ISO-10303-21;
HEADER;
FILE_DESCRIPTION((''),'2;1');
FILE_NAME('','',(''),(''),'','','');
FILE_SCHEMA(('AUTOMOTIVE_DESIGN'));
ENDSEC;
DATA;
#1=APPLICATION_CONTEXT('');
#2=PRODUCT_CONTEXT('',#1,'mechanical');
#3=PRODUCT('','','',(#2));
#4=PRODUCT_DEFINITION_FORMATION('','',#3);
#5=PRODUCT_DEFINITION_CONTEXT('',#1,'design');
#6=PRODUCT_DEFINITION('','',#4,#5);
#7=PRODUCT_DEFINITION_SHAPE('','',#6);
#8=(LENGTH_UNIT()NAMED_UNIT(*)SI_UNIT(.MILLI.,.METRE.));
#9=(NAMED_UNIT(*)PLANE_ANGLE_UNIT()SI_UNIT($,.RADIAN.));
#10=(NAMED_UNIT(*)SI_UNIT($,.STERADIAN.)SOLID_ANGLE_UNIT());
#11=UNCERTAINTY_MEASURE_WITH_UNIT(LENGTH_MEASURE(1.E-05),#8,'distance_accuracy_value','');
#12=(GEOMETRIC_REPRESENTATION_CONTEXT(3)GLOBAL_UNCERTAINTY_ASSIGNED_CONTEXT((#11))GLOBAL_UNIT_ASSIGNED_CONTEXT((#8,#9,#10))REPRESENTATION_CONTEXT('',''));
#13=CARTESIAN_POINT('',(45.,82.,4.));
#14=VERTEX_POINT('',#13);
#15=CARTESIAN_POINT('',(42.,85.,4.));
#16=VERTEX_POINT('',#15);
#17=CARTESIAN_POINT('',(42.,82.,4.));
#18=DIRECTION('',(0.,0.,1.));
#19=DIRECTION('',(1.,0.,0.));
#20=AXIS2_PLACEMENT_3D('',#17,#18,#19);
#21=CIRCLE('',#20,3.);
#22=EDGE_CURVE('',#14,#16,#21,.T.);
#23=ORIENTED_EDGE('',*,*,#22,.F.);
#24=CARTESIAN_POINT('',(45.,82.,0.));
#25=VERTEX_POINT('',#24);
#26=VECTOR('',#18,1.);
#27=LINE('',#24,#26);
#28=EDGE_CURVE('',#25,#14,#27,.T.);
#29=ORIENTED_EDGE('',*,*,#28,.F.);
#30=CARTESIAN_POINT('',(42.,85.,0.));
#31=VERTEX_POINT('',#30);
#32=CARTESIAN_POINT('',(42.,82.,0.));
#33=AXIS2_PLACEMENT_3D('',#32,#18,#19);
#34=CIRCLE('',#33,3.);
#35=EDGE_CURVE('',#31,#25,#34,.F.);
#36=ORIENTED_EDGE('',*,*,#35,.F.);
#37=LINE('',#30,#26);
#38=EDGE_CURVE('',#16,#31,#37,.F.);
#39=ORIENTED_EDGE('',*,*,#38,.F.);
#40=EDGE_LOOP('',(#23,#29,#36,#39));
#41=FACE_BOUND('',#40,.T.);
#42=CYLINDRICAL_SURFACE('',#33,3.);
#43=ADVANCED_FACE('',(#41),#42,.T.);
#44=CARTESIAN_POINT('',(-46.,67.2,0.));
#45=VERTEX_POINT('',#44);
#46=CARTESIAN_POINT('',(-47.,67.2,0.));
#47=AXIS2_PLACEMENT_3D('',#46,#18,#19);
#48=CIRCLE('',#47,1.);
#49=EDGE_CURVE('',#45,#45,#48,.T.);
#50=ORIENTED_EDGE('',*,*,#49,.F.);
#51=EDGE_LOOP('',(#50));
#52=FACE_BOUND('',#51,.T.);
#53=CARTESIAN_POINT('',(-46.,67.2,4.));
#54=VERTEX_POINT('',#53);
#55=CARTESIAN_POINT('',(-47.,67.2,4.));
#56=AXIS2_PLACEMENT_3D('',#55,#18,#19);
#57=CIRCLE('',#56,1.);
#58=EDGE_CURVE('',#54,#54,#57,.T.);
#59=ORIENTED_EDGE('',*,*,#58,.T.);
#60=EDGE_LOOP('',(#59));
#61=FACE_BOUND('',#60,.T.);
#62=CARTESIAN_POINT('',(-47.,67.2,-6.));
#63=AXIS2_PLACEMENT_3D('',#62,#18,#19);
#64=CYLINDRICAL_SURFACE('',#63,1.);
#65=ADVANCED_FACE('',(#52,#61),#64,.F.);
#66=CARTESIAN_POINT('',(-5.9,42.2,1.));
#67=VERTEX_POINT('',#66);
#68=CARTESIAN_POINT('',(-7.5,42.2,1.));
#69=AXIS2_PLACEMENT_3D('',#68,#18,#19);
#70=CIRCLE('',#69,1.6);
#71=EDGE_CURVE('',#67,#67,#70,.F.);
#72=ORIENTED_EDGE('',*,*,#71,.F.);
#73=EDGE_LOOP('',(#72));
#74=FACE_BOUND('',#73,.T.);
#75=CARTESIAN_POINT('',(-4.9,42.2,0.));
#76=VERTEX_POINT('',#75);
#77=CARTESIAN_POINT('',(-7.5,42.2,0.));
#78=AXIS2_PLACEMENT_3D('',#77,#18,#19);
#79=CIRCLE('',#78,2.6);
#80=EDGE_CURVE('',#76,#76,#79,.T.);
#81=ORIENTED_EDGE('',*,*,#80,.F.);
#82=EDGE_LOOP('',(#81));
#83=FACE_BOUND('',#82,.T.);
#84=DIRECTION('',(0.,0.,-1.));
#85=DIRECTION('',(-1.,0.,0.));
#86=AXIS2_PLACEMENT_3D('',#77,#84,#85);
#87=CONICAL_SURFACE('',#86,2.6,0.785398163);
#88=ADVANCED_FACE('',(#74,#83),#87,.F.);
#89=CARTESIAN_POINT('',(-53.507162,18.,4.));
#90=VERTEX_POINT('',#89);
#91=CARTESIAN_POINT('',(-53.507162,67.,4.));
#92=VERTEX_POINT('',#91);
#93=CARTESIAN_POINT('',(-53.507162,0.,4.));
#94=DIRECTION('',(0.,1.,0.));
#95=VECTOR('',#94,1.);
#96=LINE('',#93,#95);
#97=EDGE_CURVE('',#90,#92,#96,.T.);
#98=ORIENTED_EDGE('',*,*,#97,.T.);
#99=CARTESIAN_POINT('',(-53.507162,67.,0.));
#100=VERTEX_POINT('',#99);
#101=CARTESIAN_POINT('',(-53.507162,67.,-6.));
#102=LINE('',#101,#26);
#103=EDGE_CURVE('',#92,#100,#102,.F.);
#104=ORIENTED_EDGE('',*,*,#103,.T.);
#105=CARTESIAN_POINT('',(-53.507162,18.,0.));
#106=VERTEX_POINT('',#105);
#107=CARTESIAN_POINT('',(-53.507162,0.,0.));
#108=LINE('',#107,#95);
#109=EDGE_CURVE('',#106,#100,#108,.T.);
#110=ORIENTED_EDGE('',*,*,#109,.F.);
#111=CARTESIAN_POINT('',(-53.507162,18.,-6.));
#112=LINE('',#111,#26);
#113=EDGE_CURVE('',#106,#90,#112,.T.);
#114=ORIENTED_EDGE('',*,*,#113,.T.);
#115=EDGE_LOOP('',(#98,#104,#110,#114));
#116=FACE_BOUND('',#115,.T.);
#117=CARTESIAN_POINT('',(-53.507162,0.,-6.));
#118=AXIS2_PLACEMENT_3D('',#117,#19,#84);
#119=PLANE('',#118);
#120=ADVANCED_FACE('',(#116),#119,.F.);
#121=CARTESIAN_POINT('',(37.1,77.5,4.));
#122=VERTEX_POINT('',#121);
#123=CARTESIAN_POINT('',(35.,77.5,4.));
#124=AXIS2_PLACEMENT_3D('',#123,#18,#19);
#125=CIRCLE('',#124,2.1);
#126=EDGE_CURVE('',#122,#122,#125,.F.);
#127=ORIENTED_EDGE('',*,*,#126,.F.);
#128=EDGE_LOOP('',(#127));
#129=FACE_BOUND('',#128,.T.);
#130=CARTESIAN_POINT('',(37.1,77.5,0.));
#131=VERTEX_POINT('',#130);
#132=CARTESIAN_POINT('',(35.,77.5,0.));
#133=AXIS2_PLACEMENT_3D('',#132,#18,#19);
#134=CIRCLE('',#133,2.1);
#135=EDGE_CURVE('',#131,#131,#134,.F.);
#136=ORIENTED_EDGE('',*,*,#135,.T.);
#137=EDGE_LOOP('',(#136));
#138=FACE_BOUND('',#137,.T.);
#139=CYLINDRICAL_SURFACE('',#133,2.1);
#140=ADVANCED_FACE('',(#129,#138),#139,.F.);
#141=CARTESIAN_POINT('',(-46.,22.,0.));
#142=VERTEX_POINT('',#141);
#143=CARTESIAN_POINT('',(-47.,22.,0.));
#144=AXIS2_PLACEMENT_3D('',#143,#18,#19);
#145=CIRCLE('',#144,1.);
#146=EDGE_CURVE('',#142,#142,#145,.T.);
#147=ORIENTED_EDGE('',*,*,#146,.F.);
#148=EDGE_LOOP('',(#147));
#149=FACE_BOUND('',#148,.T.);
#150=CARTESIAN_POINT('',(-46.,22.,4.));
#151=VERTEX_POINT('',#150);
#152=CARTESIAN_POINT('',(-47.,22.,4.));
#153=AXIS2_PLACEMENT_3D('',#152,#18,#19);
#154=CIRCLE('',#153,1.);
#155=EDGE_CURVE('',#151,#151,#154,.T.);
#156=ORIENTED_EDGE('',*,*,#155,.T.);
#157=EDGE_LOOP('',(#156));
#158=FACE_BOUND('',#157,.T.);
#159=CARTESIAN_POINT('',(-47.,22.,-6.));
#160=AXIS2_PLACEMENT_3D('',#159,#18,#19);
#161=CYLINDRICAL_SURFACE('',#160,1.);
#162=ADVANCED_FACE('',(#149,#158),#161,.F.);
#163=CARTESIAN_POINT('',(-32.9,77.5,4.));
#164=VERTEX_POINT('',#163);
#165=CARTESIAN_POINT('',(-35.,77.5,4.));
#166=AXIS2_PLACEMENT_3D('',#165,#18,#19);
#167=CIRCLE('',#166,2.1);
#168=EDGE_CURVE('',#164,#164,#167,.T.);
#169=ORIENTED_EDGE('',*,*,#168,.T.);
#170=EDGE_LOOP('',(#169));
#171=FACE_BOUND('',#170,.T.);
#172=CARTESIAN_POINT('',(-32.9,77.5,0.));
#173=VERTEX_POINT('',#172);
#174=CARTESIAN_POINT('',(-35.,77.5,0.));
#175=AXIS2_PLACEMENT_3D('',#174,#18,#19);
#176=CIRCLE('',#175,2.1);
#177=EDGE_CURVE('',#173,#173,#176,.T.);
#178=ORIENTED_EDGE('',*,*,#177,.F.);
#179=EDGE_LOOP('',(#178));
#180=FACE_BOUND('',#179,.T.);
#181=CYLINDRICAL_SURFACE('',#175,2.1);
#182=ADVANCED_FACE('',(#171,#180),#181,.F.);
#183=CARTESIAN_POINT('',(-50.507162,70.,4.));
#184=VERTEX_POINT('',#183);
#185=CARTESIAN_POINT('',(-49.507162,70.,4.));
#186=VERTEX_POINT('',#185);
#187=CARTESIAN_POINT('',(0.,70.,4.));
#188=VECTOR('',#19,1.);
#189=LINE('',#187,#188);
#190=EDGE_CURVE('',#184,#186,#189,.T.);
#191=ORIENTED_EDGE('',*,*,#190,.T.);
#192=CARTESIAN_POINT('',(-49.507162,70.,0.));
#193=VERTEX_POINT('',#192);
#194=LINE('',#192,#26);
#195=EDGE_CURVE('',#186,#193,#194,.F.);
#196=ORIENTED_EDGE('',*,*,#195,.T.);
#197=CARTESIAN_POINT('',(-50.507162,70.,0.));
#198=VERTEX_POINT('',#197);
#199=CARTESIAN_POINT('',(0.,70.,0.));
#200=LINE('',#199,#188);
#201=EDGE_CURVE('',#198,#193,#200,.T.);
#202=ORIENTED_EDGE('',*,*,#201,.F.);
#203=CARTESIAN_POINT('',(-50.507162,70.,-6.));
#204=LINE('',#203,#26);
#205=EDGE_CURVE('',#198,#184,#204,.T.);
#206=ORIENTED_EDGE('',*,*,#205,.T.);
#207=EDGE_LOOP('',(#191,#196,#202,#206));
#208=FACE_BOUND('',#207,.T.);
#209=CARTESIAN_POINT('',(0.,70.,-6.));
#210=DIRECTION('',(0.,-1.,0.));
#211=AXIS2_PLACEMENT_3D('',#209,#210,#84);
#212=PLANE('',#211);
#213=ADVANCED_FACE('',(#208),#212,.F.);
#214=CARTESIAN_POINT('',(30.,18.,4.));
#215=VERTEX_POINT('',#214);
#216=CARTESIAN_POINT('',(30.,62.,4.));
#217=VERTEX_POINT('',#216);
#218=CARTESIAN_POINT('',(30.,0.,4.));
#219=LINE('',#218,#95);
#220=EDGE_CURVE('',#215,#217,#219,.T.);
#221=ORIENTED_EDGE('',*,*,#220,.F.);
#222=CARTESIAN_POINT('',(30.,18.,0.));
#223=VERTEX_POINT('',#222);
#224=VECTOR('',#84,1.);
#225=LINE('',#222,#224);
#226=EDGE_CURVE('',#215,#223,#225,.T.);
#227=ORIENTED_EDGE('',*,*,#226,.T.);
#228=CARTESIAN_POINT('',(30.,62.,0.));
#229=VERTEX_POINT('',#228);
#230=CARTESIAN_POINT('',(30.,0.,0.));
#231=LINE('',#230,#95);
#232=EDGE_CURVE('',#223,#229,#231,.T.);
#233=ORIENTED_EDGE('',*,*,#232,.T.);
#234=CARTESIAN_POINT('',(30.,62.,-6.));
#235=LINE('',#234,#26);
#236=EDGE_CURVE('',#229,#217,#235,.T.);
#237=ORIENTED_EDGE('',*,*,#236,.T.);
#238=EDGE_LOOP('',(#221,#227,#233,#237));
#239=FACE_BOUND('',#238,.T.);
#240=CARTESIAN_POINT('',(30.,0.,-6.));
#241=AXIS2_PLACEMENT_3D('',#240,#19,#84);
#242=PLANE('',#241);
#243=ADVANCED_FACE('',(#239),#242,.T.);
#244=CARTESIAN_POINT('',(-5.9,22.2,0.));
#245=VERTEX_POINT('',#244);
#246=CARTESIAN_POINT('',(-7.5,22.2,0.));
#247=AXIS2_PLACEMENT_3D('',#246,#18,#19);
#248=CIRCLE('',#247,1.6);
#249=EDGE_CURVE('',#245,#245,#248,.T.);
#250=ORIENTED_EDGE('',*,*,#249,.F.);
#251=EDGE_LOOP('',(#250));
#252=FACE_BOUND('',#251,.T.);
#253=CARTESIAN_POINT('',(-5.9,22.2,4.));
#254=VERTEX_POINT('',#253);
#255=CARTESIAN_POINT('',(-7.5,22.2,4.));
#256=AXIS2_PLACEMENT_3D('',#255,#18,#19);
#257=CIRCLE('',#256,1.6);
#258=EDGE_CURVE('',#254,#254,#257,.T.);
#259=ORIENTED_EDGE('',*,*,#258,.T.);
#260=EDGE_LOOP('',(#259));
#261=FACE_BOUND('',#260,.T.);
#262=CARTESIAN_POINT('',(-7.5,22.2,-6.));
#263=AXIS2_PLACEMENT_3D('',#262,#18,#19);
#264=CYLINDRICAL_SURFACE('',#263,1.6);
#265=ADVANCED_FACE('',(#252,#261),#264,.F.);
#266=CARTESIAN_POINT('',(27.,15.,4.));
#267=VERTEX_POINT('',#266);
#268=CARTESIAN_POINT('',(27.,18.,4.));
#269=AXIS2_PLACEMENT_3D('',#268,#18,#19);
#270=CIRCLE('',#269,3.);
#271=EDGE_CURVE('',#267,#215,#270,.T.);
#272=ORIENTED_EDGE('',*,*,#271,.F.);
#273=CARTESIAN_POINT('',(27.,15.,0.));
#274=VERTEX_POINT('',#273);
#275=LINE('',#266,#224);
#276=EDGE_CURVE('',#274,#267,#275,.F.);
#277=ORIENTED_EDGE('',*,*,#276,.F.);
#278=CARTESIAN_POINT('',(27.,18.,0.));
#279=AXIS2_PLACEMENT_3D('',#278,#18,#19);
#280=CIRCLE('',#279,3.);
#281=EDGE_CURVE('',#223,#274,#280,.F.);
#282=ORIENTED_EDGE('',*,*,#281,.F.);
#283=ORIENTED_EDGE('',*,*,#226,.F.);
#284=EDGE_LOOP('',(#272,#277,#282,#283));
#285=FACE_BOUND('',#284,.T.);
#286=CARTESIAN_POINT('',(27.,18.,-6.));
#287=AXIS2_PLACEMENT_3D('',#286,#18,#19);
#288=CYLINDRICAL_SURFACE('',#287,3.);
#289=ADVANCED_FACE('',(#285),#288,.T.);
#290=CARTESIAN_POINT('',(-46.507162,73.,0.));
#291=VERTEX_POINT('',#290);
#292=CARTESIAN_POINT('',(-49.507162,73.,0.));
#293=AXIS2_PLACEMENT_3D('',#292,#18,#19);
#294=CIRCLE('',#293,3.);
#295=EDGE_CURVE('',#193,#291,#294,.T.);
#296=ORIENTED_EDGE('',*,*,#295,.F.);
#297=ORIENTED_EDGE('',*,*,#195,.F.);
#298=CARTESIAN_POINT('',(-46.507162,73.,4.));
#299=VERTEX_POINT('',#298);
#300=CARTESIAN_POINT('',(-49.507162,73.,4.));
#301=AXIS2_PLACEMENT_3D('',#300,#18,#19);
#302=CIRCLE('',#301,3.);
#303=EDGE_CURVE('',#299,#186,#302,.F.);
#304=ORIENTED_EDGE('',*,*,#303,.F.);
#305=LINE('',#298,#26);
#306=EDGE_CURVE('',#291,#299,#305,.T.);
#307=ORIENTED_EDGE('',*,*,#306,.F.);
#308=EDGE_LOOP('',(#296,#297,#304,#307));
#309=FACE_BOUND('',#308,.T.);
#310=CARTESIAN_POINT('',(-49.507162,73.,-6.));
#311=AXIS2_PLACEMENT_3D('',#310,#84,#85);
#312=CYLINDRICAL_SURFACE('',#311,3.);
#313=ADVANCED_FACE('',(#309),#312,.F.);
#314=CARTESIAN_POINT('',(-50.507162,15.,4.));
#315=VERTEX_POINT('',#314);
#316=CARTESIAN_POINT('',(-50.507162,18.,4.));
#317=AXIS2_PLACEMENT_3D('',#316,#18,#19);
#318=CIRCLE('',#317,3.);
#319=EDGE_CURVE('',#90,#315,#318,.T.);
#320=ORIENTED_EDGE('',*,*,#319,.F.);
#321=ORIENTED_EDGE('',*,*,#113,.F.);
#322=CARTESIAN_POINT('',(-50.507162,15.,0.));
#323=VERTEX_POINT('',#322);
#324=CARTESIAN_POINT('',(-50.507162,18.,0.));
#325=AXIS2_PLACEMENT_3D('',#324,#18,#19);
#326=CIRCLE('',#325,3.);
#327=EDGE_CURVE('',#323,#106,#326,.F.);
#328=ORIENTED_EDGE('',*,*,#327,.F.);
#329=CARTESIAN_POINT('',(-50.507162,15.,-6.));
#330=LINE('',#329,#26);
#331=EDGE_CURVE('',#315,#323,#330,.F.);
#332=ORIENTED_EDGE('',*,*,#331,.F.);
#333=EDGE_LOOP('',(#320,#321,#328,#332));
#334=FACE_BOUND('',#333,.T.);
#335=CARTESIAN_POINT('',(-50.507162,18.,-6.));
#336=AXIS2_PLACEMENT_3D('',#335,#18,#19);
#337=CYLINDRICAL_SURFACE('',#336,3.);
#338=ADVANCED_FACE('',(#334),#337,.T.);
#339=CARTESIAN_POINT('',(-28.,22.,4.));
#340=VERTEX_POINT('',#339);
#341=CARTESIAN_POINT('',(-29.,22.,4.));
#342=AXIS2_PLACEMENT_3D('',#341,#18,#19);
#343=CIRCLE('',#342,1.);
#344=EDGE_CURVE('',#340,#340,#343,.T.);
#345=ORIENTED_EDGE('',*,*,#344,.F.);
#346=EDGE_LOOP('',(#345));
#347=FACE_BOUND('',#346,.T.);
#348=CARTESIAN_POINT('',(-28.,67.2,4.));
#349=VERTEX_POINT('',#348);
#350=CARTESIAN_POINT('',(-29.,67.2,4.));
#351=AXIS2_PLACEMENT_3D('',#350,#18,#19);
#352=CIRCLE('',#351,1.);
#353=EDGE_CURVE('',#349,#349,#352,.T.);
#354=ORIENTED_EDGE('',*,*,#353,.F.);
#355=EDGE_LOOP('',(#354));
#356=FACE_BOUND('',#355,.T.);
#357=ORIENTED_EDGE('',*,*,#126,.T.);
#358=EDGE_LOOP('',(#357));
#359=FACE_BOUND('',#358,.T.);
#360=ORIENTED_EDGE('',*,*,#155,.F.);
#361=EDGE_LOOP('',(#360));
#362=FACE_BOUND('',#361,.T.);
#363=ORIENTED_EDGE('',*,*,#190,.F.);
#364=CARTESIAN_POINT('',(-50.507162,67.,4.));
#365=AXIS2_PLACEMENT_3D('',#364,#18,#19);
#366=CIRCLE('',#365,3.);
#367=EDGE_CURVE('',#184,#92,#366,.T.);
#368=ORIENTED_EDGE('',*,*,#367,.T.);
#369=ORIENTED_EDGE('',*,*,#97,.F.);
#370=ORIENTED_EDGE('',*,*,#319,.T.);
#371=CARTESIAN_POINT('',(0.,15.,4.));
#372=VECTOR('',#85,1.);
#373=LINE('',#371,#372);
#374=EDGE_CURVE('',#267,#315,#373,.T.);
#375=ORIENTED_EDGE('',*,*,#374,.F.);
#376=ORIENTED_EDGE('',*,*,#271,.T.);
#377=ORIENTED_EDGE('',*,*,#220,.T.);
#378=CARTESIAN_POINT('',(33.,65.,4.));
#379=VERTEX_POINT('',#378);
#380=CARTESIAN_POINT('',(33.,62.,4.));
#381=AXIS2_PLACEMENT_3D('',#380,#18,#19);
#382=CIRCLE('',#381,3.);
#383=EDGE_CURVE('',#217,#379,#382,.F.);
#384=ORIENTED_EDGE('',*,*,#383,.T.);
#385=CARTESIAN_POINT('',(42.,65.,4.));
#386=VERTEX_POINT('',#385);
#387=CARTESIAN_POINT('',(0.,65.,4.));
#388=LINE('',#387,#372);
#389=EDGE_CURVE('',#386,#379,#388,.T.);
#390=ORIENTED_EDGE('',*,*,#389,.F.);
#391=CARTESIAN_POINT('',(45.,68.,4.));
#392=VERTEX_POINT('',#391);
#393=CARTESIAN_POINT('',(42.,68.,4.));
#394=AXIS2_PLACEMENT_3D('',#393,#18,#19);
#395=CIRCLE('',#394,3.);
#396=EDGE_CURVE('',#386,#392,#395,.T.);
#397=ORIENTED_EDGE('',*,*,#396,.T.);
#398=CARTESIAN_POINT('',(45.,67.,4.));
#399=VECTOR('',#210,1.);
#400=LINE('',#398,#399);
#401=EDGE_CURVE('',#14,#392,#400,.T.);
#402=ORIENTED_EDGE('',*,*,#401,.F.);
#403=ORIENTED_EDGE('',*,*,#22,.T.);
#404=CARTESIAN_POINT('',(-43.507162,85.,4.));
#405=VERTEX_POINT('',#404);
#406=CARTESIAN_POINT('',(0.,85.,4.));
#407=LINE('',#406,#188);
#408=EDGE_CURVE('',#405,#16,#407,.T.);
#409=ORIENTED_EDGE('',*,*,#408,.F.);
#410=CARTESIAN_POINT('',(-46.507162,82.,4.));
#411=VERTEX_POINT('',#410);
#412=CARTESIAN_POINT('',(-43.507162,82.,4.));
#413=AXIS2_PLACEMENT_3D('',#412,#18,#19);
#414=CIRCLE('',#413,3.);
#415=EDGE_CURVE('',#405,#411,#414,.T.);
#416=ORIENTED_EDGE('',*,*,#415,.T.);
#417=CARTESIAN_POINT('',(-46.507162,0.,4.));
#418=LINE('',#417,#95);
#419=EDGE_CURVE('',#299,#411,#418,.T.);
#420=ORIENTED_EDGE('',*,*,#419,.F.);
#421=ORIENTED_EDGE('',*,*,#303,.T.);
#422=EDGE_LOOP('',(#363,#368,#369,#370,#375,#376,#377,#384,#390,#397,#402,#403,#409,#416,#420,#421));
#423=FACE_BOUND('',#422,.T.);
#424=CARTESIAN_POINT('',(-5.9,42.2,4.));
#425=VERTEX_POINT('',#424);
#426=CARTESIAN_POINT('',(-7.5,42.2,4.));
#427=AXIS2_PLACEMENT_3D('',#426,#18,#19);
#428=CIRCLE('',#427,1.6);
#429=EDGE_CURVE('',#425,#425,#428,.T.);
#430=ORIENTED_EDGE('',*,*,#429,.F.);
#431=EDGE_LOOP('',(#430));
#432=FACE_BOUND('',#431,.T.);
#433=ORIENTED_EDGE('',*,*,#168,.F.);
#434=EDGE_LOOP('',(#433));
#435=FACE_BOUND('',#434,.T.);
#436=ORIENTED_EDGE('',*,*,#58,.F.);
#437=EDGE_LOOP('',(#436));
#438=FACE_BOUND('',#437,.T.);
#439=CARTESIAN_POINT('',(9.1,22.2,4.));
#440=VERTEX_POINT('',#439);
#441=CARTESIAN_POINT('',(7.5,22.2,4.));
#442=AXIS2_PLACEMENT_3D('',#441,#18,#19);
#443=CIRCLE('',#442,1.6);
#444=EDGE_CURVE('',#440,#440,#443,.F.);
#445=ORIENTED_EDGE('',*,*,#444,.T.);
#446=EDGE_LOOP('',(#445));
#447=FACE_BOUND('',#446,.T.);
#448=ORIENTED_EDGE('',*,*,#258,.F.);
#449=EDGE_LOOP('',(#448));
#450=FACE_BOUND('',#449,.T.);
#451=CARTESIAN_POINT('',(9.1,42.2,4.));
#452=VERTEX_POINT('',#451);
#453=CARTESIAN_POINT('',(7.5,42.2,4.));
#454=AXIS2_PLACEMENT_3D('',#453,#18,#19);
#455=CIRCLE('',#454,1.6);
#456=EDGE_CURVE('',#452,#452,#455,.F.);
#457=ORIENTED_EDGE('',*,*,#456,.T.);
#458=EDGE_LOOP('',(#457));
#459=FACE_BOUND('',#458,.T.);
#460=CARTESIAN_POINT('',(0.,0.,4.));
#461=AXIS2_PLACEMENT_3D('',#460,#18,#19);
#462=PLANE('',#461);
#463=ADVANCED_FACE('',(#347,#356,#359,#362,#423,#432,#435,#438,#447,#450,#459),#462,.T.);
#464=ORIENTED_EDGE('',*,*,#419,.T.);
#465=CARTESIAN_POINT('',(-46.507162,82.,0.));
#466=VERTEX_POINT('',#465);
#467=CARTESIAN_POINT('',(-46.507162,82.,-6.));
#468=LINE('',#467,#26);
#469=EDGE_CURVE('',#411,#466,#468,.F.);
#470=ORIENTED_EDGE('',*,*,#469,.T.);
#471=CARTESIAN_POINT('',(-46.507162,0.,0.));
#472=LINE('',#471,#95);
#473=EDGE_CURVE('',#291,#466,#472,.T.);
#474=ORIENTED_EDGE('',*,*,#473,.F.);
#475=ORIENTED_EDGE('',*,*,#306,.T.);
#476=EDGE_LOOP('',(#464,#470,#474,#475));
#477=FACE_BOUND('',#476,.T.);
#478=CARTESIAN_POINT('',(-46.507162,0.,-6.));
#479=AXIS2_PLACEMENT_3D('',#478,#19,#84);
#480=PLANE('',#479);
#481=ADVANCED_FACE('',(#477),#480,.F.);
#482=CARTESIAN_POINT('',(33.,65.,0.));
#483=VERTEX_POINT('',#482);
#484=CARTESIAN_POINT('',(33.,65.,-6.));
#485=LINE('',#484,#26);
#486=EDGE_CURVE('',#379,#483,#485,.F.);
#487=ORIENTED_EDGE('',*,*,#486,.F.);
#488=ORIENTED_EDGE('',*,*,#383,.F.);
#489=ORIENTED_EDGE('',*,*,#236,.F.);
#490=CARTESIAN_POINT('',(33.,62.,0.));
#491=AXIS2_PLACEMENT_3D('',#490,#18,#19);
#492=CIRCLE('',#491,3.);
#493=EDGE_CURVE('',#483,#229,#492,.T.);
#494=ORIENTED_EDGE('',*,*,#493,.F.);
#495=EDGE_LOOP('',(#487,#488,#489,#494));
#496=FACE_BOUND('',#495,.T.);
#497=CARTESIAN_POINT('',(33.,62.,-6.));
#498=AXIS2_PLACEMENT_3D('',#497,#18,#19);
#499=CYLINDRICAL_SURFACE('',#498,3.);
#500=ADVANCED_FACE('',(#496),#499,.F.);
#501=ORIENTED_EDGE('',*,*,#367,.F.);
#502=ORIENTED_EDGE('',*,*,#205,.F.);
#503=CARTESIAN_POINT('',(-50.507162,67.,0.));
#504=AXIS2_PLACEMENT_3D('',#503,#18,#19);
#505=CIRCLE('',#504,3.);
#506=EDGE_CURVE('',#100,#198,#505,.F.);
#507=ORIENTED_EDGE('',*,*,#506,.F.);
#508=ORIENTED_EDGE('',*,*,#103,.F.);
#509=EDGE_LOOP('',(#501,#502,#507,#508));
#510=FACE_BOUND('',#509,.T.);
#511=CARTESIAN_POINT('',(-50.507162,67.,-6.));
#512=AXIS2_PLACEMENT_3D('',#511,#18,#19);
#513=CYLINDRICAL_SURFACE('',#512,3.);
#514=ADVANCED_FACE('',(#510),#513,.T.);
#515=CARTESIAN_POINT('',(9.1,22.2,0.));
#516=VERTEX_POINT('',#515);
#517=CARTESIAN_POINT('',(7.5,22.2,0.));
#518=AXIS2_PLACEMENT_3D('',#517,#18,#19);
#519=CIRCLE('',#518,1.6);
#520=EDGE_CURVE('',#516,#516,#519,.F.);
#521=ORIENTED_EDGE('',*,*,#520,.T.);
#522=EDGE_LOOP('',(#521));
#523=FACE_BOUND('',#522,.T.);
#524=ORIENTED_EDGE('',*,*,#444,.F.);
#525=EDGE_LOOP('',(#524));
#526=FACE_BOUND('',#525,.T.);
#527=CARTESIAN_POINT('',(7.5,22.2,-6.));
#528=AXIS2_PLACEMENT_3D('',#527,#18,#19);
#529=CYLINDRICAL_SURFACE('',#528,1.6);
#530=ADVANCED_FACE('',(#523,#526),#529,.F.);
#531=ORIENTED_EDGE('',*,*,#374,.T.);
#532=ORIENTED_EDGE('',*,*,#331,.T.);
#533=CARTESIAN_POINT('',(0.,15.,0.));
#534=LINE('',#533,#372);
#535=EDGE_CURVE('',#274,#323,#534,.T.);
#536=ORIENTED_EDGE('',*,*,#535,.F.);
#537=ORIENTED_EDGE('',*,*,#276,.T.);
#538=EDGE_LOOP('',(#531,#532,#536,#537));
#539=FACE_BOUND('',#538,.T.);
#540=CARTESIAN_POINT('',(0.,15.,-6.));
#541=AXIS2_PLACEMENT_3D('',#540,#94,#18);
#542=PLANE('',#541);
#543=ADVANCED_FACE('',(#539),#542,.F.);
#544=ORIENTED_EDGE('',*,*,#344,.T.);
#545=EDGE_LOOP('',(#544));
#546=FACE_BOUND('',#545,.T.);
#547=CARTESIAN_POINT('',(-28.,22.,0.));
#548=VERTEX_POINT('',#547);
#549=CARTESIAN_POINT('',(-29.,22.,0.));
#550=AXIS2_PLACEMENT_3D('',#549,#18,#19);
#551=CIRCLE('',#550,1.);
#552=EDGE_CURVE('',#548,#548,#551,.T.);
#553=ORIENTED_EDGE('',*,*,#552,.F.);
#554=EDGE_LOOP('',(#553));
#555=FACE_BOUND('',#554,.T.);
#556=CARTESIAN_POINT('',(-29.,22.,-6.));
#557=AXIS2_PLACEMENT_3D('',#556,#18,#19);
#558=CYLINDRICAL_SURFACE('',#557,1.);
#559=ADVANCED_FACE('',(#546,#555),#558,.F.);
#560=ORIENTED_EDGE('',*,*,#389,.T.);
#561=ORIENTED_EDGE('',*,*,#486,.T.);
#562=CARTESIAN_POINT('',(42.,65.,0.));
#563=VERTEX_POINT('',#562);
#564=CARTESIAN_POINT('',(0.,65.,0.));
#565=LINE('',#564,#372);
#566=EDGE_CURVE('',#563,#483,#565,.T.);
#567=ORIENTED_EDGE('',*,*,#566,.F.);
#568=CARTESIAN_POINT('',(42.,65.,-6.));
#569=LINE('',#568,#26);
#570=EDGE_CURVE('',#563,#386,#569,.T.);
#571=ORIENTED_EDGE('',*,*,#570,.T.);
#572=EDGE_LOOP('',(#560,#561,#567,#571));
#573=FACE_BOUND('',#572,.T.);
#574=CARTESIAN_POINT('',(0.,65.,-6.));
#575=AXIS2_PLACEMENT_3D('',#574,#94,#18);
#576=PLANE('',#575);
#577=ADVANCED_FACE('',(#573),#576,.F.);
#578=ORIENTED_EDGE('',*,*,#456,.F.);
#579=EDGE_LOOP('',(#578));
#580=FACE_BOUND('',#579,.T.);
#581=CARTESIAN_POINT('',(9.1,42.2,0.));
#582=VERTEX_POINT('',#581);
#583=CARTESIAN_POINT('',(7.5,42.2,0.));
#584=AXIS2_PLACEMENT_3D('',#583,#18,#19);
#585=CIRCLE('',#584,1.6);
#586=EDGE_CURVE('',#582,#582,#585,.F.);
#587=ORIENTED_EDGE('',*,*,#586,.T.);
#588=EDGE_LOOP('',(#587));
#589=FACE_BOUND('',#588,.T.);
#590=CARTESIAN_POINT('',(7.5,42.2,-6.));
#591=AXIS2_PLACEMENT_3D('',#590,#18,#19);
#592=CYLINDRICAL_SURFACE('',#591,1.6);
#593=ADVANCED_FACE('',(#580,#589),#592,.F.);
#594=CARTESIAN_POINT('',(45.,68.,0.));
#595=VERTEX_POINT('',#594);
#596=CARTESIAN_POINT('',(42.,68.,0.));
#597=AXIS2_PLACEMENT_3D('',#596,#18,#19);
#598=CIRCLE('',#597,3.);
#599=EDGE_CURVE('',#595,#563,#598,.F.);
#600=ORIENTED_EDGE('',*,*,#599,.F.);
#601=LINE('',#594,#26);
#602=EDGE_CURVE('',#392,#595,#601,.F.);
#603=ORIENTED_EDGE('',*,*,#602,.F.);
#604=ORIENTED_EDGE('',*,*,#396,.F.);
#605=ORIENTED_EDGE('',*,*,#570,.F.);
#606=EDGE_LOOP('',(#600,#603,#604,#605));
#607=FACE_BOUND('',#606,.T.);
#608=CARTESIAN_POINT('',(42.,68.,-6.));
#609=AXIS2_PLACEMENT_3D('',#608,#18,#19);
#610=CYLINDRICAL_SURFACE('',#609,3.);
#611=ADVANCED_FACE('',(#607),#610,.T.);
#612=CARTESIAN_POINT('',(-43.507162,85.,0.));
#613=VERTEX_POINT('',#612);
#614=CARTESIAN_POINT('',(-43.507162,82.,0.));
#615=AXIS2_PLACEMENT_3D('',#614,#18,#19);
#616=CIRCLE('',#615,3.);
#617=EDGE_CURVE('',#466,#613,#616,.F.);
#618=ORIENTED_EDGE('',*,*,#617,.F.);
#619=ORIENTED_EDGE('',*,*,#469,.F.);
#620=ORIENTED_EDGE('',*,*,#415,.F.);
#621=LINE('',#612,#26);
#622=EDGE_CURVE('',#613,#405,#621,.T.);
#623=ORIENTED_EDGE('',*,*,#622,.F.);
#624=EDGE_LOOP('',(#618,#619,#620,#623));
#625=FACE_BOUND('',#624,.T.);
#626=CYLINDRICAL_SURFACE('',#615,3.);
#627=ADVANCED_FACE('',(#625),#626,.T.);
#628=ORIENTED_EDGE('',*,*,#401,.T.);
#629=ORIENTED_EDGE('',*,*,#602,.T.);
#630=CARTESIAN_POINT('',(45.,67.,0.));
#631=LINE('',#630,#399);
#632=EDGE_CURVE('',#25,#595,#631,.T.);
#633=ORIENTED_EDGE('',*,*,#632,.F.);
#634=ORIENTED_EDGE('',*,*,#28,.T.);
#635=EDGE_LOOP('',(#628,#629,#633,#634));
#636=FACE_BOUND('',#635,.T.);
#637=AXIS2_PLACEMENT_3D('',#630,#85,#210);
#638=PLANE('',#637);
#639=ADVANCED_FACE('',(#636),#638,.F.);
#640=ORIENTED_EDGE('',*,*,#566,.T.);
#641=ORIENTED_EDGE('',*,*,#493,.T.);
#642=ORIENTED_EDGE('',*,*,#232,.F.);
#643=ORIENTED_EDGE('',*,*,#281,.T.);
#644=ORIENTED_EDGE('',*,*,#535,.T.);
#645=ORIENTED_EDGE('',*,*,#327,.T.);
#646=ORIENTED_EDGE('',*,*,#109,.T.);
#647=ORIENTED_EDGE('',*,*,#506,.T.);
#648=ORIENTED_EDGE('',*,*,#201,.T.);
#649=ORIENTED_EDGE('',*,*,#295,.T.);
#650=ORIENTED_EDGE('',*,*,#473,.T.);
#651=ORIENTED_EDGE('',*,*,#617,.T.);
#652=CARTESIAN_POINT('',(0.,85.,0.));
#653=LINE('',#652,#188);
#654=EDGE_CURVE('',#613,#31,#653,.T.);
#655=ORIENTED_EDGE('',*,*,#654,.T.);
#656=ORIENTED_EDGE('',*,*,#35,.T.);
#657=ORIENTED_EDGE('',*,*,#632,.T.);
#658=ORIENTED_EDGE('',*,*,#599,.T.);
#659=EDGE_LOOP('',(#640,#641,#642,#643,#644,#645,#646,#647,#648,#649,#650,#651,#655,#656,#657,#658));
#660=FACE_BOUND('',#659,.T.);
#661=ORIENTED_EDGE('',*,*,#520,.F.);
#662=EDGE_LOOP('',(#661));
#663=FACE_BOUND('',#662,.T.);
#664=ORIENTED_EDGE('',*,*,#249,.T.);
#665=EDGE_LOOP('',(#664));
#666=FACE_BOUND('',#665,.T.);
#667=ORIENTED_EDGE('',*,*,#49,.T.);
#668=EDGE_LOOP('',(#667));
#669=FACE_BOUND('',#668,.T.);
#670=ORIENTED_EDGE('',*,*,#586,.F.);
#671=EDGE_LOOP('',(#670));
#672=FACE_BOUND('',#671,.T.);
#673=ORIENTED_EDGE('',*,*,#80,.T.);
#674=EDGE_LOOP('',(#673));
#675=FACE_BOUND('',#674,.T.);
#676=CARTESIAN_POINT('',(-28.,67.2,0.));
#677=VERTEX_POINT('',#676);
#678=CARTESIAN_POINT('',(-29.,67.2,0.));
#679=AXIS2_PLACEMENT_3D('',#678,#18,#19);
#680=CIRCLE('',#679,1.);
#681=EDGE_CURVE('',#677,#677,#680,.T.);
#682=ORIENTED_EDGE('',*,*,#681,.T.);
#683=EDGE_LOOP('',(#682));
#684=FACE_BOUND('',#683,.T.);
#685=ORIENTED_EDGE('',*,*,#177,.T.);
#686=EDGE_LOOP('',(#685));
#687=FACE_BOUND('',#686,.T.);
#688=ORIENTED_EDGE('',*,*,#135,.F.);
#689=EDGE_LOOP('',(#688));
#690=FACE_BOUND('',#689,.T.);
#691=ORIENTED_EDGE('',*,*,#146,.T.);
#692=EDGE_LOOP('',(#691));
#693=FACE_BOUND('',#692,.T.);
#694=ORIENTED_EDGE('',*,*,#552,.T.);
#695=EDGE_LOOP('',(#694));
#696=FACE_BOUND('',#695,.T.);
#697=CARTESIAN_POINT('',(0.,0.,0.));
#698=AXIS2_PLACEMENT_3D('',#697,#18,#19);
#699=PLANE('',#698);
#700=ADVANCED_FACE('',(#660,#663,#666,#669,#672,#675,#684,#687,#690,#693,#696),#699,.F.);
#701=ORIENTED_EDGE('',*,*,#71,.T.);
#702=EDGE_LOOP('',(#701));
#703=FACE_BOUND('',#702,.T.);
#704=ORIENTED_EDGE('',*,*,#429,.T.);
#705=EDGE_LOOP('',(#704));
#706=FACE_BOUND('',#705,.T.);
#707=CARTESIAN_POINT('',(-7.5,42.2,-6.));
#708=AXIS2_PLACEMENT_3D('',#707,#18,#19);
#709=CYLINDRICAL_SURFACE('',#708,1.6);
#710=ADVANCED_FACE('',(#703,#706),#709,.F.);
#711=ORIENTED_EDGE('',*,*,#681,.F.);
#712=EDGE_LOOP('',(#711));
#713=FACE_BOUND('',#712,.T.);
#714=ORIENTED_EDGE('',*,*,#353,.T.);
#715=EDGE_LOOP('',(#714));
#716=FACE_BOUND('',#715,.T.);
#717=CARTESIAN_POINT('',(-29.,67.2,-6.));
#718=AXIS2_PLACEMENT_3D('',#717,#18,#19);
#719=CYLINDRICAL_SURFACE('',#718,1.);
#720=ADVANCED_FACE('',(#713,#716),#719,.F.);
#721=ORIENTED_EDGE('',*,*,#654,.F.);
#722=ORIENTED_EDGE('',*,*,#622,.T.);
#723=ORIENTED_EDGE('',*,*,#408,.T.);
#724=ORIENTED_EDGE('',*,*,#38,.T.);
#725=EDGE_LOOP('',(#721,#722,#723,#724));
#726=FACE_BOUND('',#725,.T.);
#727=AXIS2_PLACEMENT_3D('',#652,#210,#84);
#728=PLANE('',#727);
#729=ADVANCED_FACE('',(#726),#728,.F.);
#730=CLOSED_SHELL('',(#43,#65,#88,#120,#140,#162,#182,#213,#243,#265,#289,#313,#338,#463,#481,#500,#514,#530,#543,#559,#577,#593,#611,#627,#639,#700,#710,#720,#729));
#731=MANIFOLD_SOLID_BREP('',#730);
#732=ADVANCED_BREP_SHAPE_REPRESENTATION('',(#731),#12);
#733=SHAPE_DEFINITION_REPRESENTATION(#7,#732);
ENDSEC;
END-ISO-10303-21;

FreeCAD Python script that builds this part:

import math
import FreeCAD as App
import Part
import Sketcher
from FreeCAD import Vector
Q = App.Units.Quantity


def edges_at(feature, points):
    """Names of the edges that pass closest to the given points."""
    edges = feature.Shape.Edges
    near = lambda p: min(range(len(edges)), key=lambda i: edges[i].distToShape(Part.Vertex(*p))[0])
    return sorted({f"Edge{near(p) + 1}" for p in points})


def add_polygon(sketch, points):
    """Adds a closed chain of lines whose ends are joined by coincident constraints."""
    first, n = sketch.GeometryCount, len(points)
    for a, b in zip(points, points[1:] + points[:1]):
        sketch.addGeometry(Part.LineSegment(App.Vector(*a, 0), App.Vector(*b, 0)), False)
    for i in range(n):
        sketch.addConstraint(Sketcher.Constraint("Coincident", first + i, 2, first + (i + 1) % n, 1))

doc = App.newDocument("Part")
body = doc.addObject("PartDesign::Body", "Body")

sketch1 = body.newObject("Sketcher::SketchObject", "Sketch")
sketch1.AttachmentSupport = (doc.getObject("XY_Plane"), [""])
sketch1.MapMode = "FlatFace"
add_polygon(sketch1, [(-125, 15), (-125, -15), (125, -15), (125, 15)])
sketch1.addGeometry(Part.Circle(Vector(-115, -10, 0), Vector(0, 0, 1), 1.5), False)
sketch1.addGeometry(Part.Circle(Vector(115, -10, 0), Vector(0, 0, 1), 1.5), False)
sketch1.addGeometry(Part.Circle(Vector(-115, 10, 0), Vector(0, 0, 1), 1.5), False)
sketch1.addGeometry(Part.Circle(Vector(115, 10, 0), Vector(0, 0, 1), 1.5), False)
sketch1.addConstraint([
    Sketcher.Constraint("Vertical", 0),
    Sketcher.Constraint("Horizontal", 1),
    Sketcher.Constraint("Vertical", 2),
    Sketcher.Constraint("Horizontal", 3),
    Sketcher.Constraint("Equal", 4, 5),
    Sketcher.Constraint("Equal", 5, 6),
    Sketcher.Constraint("Equal", 6, 7),
    Sketcher.Constraint("Symmetric", 5, 3, 6, 3, -1, 1),
    Sketcher.Constraint("Symmetric", 4, 3, 7, 3, -1, 1),
    Sketcher.Constraint("Symmetric", 0, 2, 2, 2, -1, 1),
    Sketcher.Constraint("Symmetric", 4, 3, 5, 3, -2),
    Sketcher.Constraint("Diameter", 4, Q("3 mm")),
    Sketcher.Constraint("DistanceX", 1, 1, 1, 2, Q("250 mm")),
    Sketcher.Constraint("DistanceY", 0, 2, 0, 1, Q("30 mm")),
    Sketcher.Constraint("DistanceX", 4, 3, -1, 1, Q("115 mm")),
    Sketcher.Constraint("DistanceY", 4, 3, -1, 1, Q("10 mm")),
])
pad1 = body.newObject("PartDesign::Pad", "Pad")
pad1.Profile = sketch1
pad1.Length = 4

sketch2 = body.newObject("Sketcher::SketchObject", "Sketch001")
sketch2.AttachmentSupport = (doc.getObject("XY_Plane"), [""])
sketch2.MapMode = "FlatFace"
sketch2.AttachmentOffset = App.Placement(Vector(0, 0, 4), App.Rotation())
sketch2.addGeometry([
    Part.Circle(Vector(-23, 2.5, 0), Vector(0, 0, 1), 3),
    Part.Circle(Vector(23, 2.5, 0), Vector(0, 0, 1), 3),
    Part.Circle(Vector(23, 15.5, 0), Vector(0, 0, 1), 3),
    Part.Circle(Vector(-23, 15.5, 0), Vector(0, 0, 1), 3),
], False)
sketch2.addConstraint([
    Sketcher.Constraint("Equal", 0, 1),
    Sketcher.Constraint("Equal", 1, 2),
    Sketcher.Constraint("Equal", 2, 3),
    Sketcher.Constraint("Symmetric", 0, 3, 1, 3, -2),
    Sketcher.Constraint("Symmetric", 2, 3, 3, 3, -2),
    Sketcher.Constraint("Vertical", 1, 3, 2, 3),
    Sketcher.Constraint("Diameter", 0, Q("6 mm")),
    Sketcher.Constraint("DistanceX", 0, 3, -1, 1, Q("23 mm")),
    Sketcher.Constraint("DistanceY", 1, 3, 2, 3, Q("13 mm")),
    Sketcher.Constraint("DistanceY", -1, 1, 0, 3, Q("2.5 mm")),
])
pocket1 = body.newObject("PartDesign::Pocket", "Pocket")
pocket1.Profile = sketch2
pocket1.Type = "ThroughAll"

sketch3 = body.newObject("Sketcher::SketchObject", "Sketch002")
sketch3.AttachmentSupport = (doc.getObject("XY_Plane"), [""])
sketch3.MapMode = "FlatFace"
sketch3.AttachmentOffset = App.Placement(Vector(0, 0, 4), App.Rotation())
add_polygon(sketch3, [(-125, 85), (-125, 15), (125, 15), (125, 85)])
sketch3.addGeometry(Part.Circle(Vector(-115, 30, 0), Vector(0, 0, 1), 1.5), False)
sketch3.addGeometry(Part.Circle(Vector(-115, 50, 0), Vector(0, 0, 1), 1.5), False)
sketch3.addGeometry(Part.Circle(Vector(115, 30, 0), Vector(0, 0, 1), 1.5), False)
sketch3.addGeometry(Part.Circle(Vector(115, 50, 0), Vector(0, 0, 1), 1.5), False)
sketch3.addGeometry(Part.Circle(Vector(-115, 70, 0), Vector(0, 0, 1), 1.5), False)
sketch3.addGeometry(Part.Circle(Vector(-35, 77.5, 0), Vector(0, 0, 1), 2.1), False)
sketch3.addGeometry(Part.Circle(Vector(35, 77.5, 0), Vector(0, 0, 1), 2.1), False)
sketch3.addGeometry(Part.Circle(Vector(115, 70, 0), Vector(0, 0, 1), 1.5), False)
sketch3.addConstraint([
    Sketcher.Constraint("Vertical", 0),
    Sketcher.Constraint("Horizontal", 1),
    Sketcher.Constraint("Vertical", 2),
    Sketcher.Constraint("Horizontal", 3),
    Sketcher.Constraint("Equal", 4, 5),
    Sketcher.Constraint("Equal", 5, 6),
    Sketcher.Constraint("Equal", 6, 7),
    Sketcher.Constraint("Equal", 7, 8),
    Sketcher.Constraint("Equal", 9, 10),
    Sketcher.Constraint("Equal", 8, 11),
    Sketcher.Constraint("Symmetric", 4, 3, 6, 3, -2),
    Sketcher.Constraint("Symmetric", 5, 3, 7, 3, -2),
    Sketcher.Constraint("Symmetric", 9, 3, 10, 3, -2),
    Sketcher.Constraint("Symmetric", 8, 3, 11, 3, -2),
    Sketcher.Constraint("Vertical", 4, 3, 5, 3),
    Sketcher.Constraint("Vertical", 5, 3, 8, 3),
    Sketcher.Constraint("Diameter", 4, Q("3 mm")),
    Sketcher.Constraint("Diameter", 9, Q("4.2 mm")),
    Sketcher.Constraint("DistanceX", 1, 1, 1, 2, Q("250 mm")),
    Sketcher.Constraint("DistanceY", 0, 2, 0, 1, Q("70 mm")),
    Sketcher.Constraint("DistanceX", 4, 3, -1, 1, Q("115 mm")),
    Sketcher.Constraint("DistanceY", -1, 1, 4, 3, Q("30 mm")),
    Sketcher.Constraint("DistanceY", -1, 1, 5, 3, Q("50 mm")),
    Sketcher.Constraint("DistanceY", -1, 1, 8, 3, Q("70 mm")),
    Sketcher.Constraint("DistanceX", 9, 3, -1, 1, Q("35 mm")),
    Sketcher.Constraint("DistanceX", 0, 2, -1, 1, Q("125 mm")),
    Sketcher.Constraint("DistanceY", -1, 1, 0, 2, Q("15 mm")),
    Sketcher.Constraint("DistanceY", -1, 1, 9, 3, Q("77.5 mm")),
])
pad2 = body.newObject("PartDesign::Pad", "Pad001")
pad2.Profile = sketch3
pad2.Length = 4
pad2.Reversed = True

sketch4 = body.newObject("Sketcher::SketchObject", "Sketch003")
sketch4.AttachmentSupport = (doc.getObject("XY_Plane"), [""])
sketch4.MapMode = "FlatFace"
sketch4.AttachmentOffset = App.Placement(Vector(0, 0, 4), App.Rotation())
sketch4.addGeometry([
    Part.LineSegment(Vector(-48, 70, 0), Vector(-97, 70, 0)),
    Part.ArcOfCircle(Part.Circle(Vector(-97, 67, 0), Vector(0, 0, 1), 3), math.radians(90), math.radians(180)),
    Part.LineSegment(Vector(-100, 67, 0), Vector(-100, 3, 0)),
    Part.ArcOfCircle(Part.Circle(Vector(-97, 3, 0), Vector(0, 0, 1), 3), math.radians(180), math.radians(270)),
    Part.LineSegment(Vector(-97, 0, 0), Vector(-48, 0, 0)),
    Part.ArcOfCircle(Part.Circle(Vector(-48, 3, 0), Vector(0, 0, 1), 3), math.radians(-90), math.radians(0)),
    Part.LineSegment(Vector(-45, 3, 0), Vector(-45, 67, 0)),
    Part.ArcOfCircle(Part.Circle(Vector(-48, 67, 0), Vector(0, 0, 1), 3), math.radians(0), math.radians(90)),
    Part.LineSegment(Vector(48, 0, 0), Vector(97, 0, 0)),
    Part.ArcOfCircle(Part.Circle(Vector(97, 3, 0), Vector(0, 0, 1), 3), math.radians(-90), math.radians(0)),
    Part.LineSegment(Vector(100, 3, 0), Vector(100, 67, 0)),
    Part.ArcOfCircle(Part.Circle(Vector(97, 67, 0), Vector(0, 0, 1), 3), math.radians(0), math.radians(90)),
    Part.LineSegment(Vector(97, 70, 0), Vector(48, 70, 0)),
    Part.ArcOfCircle(Part.Circle(Vector(48, 67, 0), Vector(0, 0, 1), 3), math.radians(90), math.radians(180)),
    Part.LineSegment(Vector(45, 67, 0), Vector(45, 3, 0)),
    Part.ArcOfCircle(Part.Circle(Vector(48, 3, 0), Vector(0, 0, 1), 3), math.radians(180), math.radians(270)),
], False)
sketch4.addConstraint([
    Sketcher.Constraint("Tangent", 0, 2, 1, 1),
    Sketcher.Constraint("Tangent", 1, 2, 2, 1),
    Sketcher.Constraint("Tangent", 2, 2, 3, 1),
    Sketcher.Constraint("Tangent", 3, 2, 4, 1),
    Sketcher.Constraint("Tangent", 4, 2, 5, 1),
    Sketcher.Constraint("Tangent", 5, 2, 6, 1),
    Sketcher.Constraint("Tangent", 6, 2, 7, 1),
    Sketcher.Constraint("Tangent", 7, 2, 0, 1),
    Sketcher.Constraint("Tangent", 8, 2, 9, 1),
    Sketcher.Constraint("Tangent", 9, 2, 10, 1),
    Sketcher.Constraint("Tangent", 10, 2, 11, 1),
    Sketcher.Constraint("Tangent", 11, 2, 12, 1),
    Sketcher.Constraint("Tangent", 12, 2, 13, 1),
    Sketcher.Constraint("Tangent", 13, 2, 14, 1),
    Sketcher.Constraint("Tangent", 14, 2, 15, 1),
    Sketcher.Constraint("Tangent", 15, 2, 8, 1),
    Sketcher.Constraint("Horizontal", 0),
    Sketcher.Constraint("Vertical", 2),
    Sketcher.Constraint("Horizontal", 4),
    Sketcher.Constraint("Vertical", 6),
    Sketcher.Constraint("Horizontal", 8),
    Sketcher.Constraint("Vertical", 10),
    Sketcher.Constraint("Horizontal", 12),
    Sketcher.Constraint("Vertical", 14),
    Sketcher.Constraint("Equal", 1, 3),
    Sketcher.Constraint("Equal", 3, 5),
    Sketcher.Constraint("Equal", 5, 7),
    Sketcher.Constraint("Equal", 7, 9),
    Sketcher.Constraint("Equal", 9, 11),
    Sketcher.Constraint("Equal", 11, 13),
    Sketcher.Constraint("Equal", 13, 15),
    Sketcher.Constraint("Symmetric", 3, 2, 8, 2, -1, 1),
    Sketcher.Constraint("Symmetric", 7, 3, 13, 3, -2),
    Sketcher.Constraint("PointOnObject", 3, 2, -1),
    Sketcher.Constraint("Radius", 1, Q("3 mm")),
    Sketcher.Constraint("DistanceX", 0, 2, 0, 1, Q("49 mm")),
    Sketcher.Constraint("DistanceY", 2, 2, 2, 1, Q("64 mm")),
    Sketcher.Constraint("DistanceX", 1, 3, -1, 1, Q("97 mm")),
])
pocket2 = body.newObject("PartDesign::Pocket", "Pocket001")
pocket2.Profile = sketch4
pocket2.Type = "ThroughAll"
doc.recompute()

fillet = body.newObject("PartDesign::Fillet", "Fillet")
fillet.Base = (pocket2, edges_at(pocket2, [
    (125, 85, 2),
    (-125, 85, 2),
    (125, -15, 2),
    (-125, -15, 2),
]))
fillet.Radius = 5

sketch5 = body.newObject("Sketcher::SketchObject", "Sketch004")
sketch5.AttachmentSupport = (doc.getObject("XY_Plane"), [""])
sketch5.MapMode = "FlatFace"
sketch5.AttachmentOffset = App.Placement(Vector(0, 0, 4), App.Rotation())
sketch5.addGeometry([
    Part.Circle(Vector(-23, 15.5, 0), Vector(0, 0, 1), 3),
    Part.Circle(Vector(23, 15.5, 0), Vector(0, 0, 1), 3),
], False)
sketch5.addConstraint([
    Sketcher.Constraint("Equal", 0, 1),
    Sketcher.Constraint("Symmetric", 0, 3, 1, 3, -2),
    Sketcher.Constraint("Diameter", 0, Q("6 mm")),
    Sketcher.Constraint("DistanceX", 0, 3, -1, 1, Q("23 mm")),
    Sketcher.Constraint("DistanceY", -1, 1, 0, 3, Q("15.5 mm")),
])
pocket3 = body.newObject("PartDesign::Pocket", "Pocket002")
pocket3.Profile = sketch5
pocket3.Type = "ThroughAll"

sketch6 = body.newObject("Sketcher::SketchObject", "Sketch005")
sketch6.AttachmentSupport = (doc.getObject("XY_Plane"), [""])
sketch6.MapMode = "FlatFace"
sketch6.AttachmentOffset = App.Placement(Vector(0, 0, 4), App.Rotation())
add_polygon(sketch6, [(-65, 70), (-65, 20), (-45, 20), (-45, 70)])
sketch6.addConstraint([
    Sketcher.Constraint("Vertical", 0),
    Sketcher.Constraint("Horizontal", 1),
    Sketcher.Constraint("Vertical", 2),
    Sketcher.Constraint("Horizontal", 3),
    Sketcher.Constraint("DistanceX", 1, 1, 1, 2, Q("20 mm")),
    Sketcher.Constraint("DistanceY", 0, 2, 0, 1, Q("50 mm")),
    Sketcher.Constraint("DistanceX", 0, 2, -1, 1, Q("65 mm")),
    Sketcher.Constraint("DistanceY", -1, 1, 0, 2, Q("20 mm")),
])
pad3 = body.newObject("PartDesign::Pad", "Pad002")
pad3.Profile = sketch6
pad3.Length = 4
pad3.Reversed = True

sketch7 = body.newObject("Sketcher::SketchObject", "Sketch006")
sketch7.AttachmentSupport = (doc.getObject("XY_Plane"), [""])
sketch7.MapMode = "FlatFace"
sketch7.AttachmentOffset = App.Placement(Vector(0, 0, 4), App.Rotation())
sketch7.addGeometry([
    Part.Circle(Vector(-47, 22, 0), Vector(0, 0, 1), 1),
    Part.Circle(Vector(-29, 22, 0), Vector(0, 0, 1), 1),
    Part.Circle(Vector(-47, 67.2, 0), Vector(0, 0, 1), 1),
    Part.Circle(Vector(-29, 67.2, 0), Vector(0, 0, 1), 1),
], False)
sketch7.addConstraint([
    Sketcher.Constraint("Equal", 0, 1),
    Sketcher.Constraint("Equal", 1, 2),
    Sketcher.Constraint("Equal", 2, 3),
    Sketcher.Constraint("Horizontal", 0, 3, 1, 3),
    Sketcher.Constraint("Horizontal", 2, 3, 3, 3),
    Sketcher.Constraint("Vertical", 0, 3, 2, 3),
    Sketcher.Constraint("Vertical", 1, 3, 3, 3),
    Sketcher.Constraint("Diameter", 0, Q("2 mm")),
    Sketcher.Constraint("DistanceX", 0, 3, -1, 1, Q("47 mm")),
    Sketcher.Constraint("DistanceY", -1, 1, 0, 3, Q("22 mm")),
    Sketcher.Constraint("DistanceX", 1, 3, -1, 1, Q("29 mm")),
    Sketcher.Constraint("DistanceY", -1, 1, 2, 3, Q("67.2 mm")),
])
pocket4 = body.newObject("PartDesign::Pocket", "Pocket003")
pocket4.Profile = sketch7
pocket4.Length = 10

sketch8 = body.newObject("Sketcher::SketchObject", "Sketch007")
sketch8.AttachmentSupport = (doc.getObject("XY_Plane"), [""])
sketch8.MapMode = "FlatFace"
sketch8.AttachmentOffset = App.Placement(Vector(0, 0, 4), App.Rotation())
add_polygon(sketch8, [(-35, 15), (-35, -15), (35, -15), (35, 15)])
sketch8.addConstraint([
    Sketcher.Constraint("Vertical", 0),
    Sketcher.Constraint("Horizontal", 1),
    Sketcher.Constraint("Vertical", 2),
    Sketcher.Constraint("Horizontal", 3),
    Sketcher.Constraint("Symmetric", 0, 2, 2, 2, -1, 1),
    Sketcher.Constraint("DistanceX", 1, 1, 1, 2, Q("70 mm")),
    Sketcher.Constraint("DistanceY", 0, 2, 0, 1, Q("30 mm")),
])
pocket5 = body.newObject("PartDesign::Pocket", "Pocket004")
pocket5.Profile = sketch8
pocket5.Length = 10

sketch9 = body.newObject("Sketcher::SketchObject", "Sketch008")
sketch9.AttachmentSupport = (doc.getObject("XY_Plane"), [""])
sketch9.MapMode = "FlatFace"
sketch9.AttachmentOffset = App.Placement(Vector(0, 0, 4), App.Rotation())
add_polygon(sketch9, [(-35, 19.604086), (-35, 15), (35, 15), (35, 19.604086)])
sketch9.addConstraint([
    Sketcher.Constraint("Vertical", 0),
    Sketcher.Constraint("Horizontal", 1),
    Sketcher.Constraint("Vertical", 2),
    Sketcher.Constraint("Horizontal", 3),
    Sketcher.Constraint("DistanceX", 1, 1, 1, 2, Q("70 mm")),
    Sketcher.Constraint("DistanceX", 0, 2, -1, 1, Q("35 mm")),
    Sketcher.Constraint("DistanceY", -1, 1, 0, 2, Q("15 mm")),
    Sketcher.Constraint("DistanceY", 0, 2, 0, 1, Q("4.604086 mm")),
])
pad4 = body.newObject("PartDesign::Pad", "Pad003")
pad4.Profile = sketch9
pad4.Length = 4
pad4.Reversed = True
doc.recompute()

fillet2 = body.newObject("PartDesign::Fillet", "Fillet001")
fillet2.Base = (pad4, edges_at(pad4, [
    (-35, -15, 2),
    (35, -15, 2),
    (35, 15, 2),
    (-35, 15, 2),
]))
fillet2.Radius = 10

sketch10 = body.newObject("Sketcher::SketchObject", "Sketch009")
sketch10.AttachmentSupport = (doc.getObject("XY_Plane"), [""])
sketch10.MapMode = "FlatFace"
sketch10.AttachmentOffset = App.Placement(Vector(0, 0, 4), App.Rotation())
add_polygon(sketch10, [(-159.482058, 67), (-159.482058, -21.443198), (-25, -21.443198), (-25, 15), (-56.507162, 15), (-56.507162, 102.331531), (-144.590661, 102.331531), (-144.590661, 67)])
add_polygon(sketch10, [(45, 102.331531), (45, 15), (25, 15), (25, -21.443198), (159.482058, -21.443198), (159.482058, 67), (144.590661, 67), (144.590661, 102.331531)])
sketch10.addConstraint([
    Sketcher.Constraint("Vertical", 0),
    Sketcher.Constraint("Horizontal", 1),
    Sketcher.Constraint("Vertical", 2),
    Sketcher.Constraint("Horizontal", 3),
    Sketcher.Constraint("Vertical", 4),
    Sketcher.Constraint("Horizontal", 5),
    Sketcher.Constraint("Vertical", 6),
    Sketcher.Constraint("Horizontal", 7),
    Sketcher.Constraint("Vertical", 8),
    Sketcher.Constraint("Horizontal", 9),
    Sketcher.Constraint("Vertical", 10),
    Sketcher.Constraint("Horizontal", 11),
    Sketcher.Constraint("Vertical", 12),
    Sketcher.Constraint("Horizontal", 13),
    Sketcher.Constraint("Vertical", 14),
    Sketcher.Constraint("Horizontal", 15),
    Sketcher.Constraint("Symmetric", 2, 2, 9, 2, -2),
    Sketcher.Constraint("Symmetric", 0, 2, 11, 2, -2),
    Sketcher.Constraint("Symmetric", 6, 2, 13, 2, -2),
    Sketcher.Constraint("Horizontal", 5, 2, 14, 2),
    Sketcher.Constraint("DistanceX", 9, 2, 9, 1, Q("20 mm")),
    Sketcher.Constraint("DistanceX", 1, 2, -1, 1, Q("25 mm")),
    Sketcher.Constraint("DistanceY", -1, 1, 2, 2, Q("15 mm")),
    Sketcher.Constraint("DistanceY", -1, 1, 6, 2, Q("67 mm")),
    Sketcher.Constraint("DistanceX", 5, 2, 5, 1, Q("88.083498 mm")),
    Sketcher.Constraint("DistanceY", 0, 2, 0, 1, Q("88.443198 mm")),
    Sketcher.Constraint("DistanceX", 15, 2, 15, 1, Q("99.590661 mm")),
    Sketcher.Constraint("DistanceY", 4, 1, 4, 2, Q("87.331531 mm")),
    Sketcher.Constraint("DistanceX", 1, 1, 1, 2, Q("134.482058 mm")),
])
pocket6 = body.newObject("PartDesign::Pocket", "Pocket005")
pocket6.Profile = sketch10
pocket6.Length = 10

sketch11 = body.newObject("Sketcher::SketchObject", "Sketch010")
sketch11.AttachmentSupport = (doc.getObject("XY_Plane"), [""])
sketch11.MapMode = "FlatFace"
sketch11.AttachmentOffset = App.Placement(Vector(0, 0, 4), App.Rotation())
add_polygon(sketch11, [(-56.507162, 20), (-56.507162, 15), (-45, 15), (-45, 20)])
sketch11.addConstraint([
    Sketcher.Constraint("Vertical", 0),
    Sketcher.Constraint("Horizontal", 1),
    Sketcher.Constraint("Vertical", 2),
    Sketcher.Constraint("Horizontal", 3),
    Sketcher.Constraint("DistanceY", 0, 2, 0, 1, Q("5 mm")),
    Sketcher.Constraint("DistanceY", -1, 1, 0, 2, Q("15 mm")),
    Sketcher.Constraint("DistanceX", 1, 2, -1, 1, Q("45 mm")),
    Sketcher.Constraint("DistanceX", 1, 1, 1, 2, Q("11.507162 mm")),
])
pad5 = body.newObject("PartDesign::Pad", "Pad004")
pad5.Profile = sketch11
pad5.Length = 4
pad5.Reversed = True

sketch12 = body.newObject("Sketcher::SketchObject", "Sketch011")
sketch12.AttachmentSupport = (doc.getObject("XY_Plane"), [""])
sketch12.MapMode = "FlatFace"
sketch12.AttachmentOffset = App.Placement(Vector(0, 0, 4), App.Rotation())
add_polygon(sketch12, [(-53.507162, 70), (-46.507162, 70), (-46.507162, 85), (-56.507162, 85), (-56.507162, 15), (-53.507162, 15)])
add_polygon(sketch12, [(30, 65), (30, 15), (45, 15), (45, 65)])
sketch12.addConstraint([
    Sketcher.Constraint("Horizontal", 0),
    Sketcher.Constraint("Vertical", 1),
    Sketcher.Constraint("Horizontal", 2),
    Sketcher.Constraint("Vertical", 3),
    Sketcher.Constraint("Horizontal", 4),
    Sketcher.Constraint("Vertical", 5),
    Sketcher.Constraint("Vertical", 6),
    Sketcher.Constraint("Horizontal", 7),
    Sketcher.Constraint("Vertical", 8),
    Sketcher.Constraint("Horizontal", 9),
    Sketcher.Constraint("Horizontal", 4, 2, 6, 2),
    Sketcher.Constraint("Equal", 9, 1),
    Sketcher.Constraint("DistanceX", 0, 1, 0, 2, Q("7 mm")),
    Sketcher.Constraint("DistanceX", 2, 2, 2, 1, Q("10 mm")),
    Sketcher.Constraint("DistanceX", 7, 1, 7, 2, Q("15 mm")),
    Sketcher.Constraint("DistanceY", 3, 2, 3, 1, Q("70 mm")),
    Sketcher.Constraint("DistanceY", 6, 2, 6, 1, Q("50 mm")),
    Sketcher.Constraint("DistanceY", -1, 1, 0, 2, Q("70 mm")),
    Sketcher.Constraint("DistanceX", -1, 1, 6, 2, Q("30 mm")),
    Sketcher.Constraint("DistanceX", 0, 2, -1, 1, Q("46.507162 mm")),
])
pocket7 = body.newObject("PartDesign::Pocket", "Pocket006")
pocket7.Profile = sketch12
pocket7.Length = 10
doc.recompute()

fillet3 = body.newObject("PartDesign::Fillet", "Fillet002")
fillet3.Base = (pocket7, edges_at(pocket7, [
    (45, 85, 2),
    (30, 15, 2),
    (-46.507, 70, 2),
    (-46.507, 85, 2),
    (-53.507, 70, 2),
    (-53.507, 15, 2),
    (30, 65, 2),
    (45, 65, 2),
]))
fillet3.Radius = 3

sketch13 = body.newObject("Sketcher::SketchObject", "Sketch012")
sketch13.AttachmentSupport = (doc.getObject("XY_Plane"), [""])
sketch13.MapMode = "FlatFace"
sketch13.AttachmentOffset = App.Placement(Vector(0, 0, 4), App.Rotation())
sketch13.addGeometry([
    Part.Circle(Vector(-7.5, 42.2, 0), Vector(0, 0, 1), 1.6),
    Part.Circle(Vector(7.5, 42.2, 0), Vector(0, 0, 1), 1.6),
    Part.Circle(Vector(-7.5, 22.2, 0), Vector(0, 0, 1), 1.6),
    Part.Circle(Vector(7.5, 22.2, 0), Vector(0, 0, 1), 1.6),
], False)
sketch13.addConstraint([
    Sketcher.Constraint("Equal", 0, 1),
    Sketcher.Constraint("Equal", 1, 2),
    Sketcher.Constraint("Equal", 2, 3),
    Sketcher.Constraint("Symmetric", 0, 3, 1, 3, -2),
    Sketcher.Constraint("Symmetric", 2, 3, 3, 3, -2),
    Sketcher.Constraint("Vertical", 0, 3, 2, 3),
    Sketcher.Constraint("Diameter", 0, Q("3.2 mm")),
    Sketcher.Constraint("DistanceX", 0, 3, 1, 3, Q("15 mm")),
    Sketcher.Constraint("DistanceY", 2, 3, 0, 3, Q("20 mm")),
    Sketcher.Constraint("DistanceY", -1, 1, 0, 3, Q("42.2 mm")),
])
pocket8 = body.newObject("PartDesign::Pocket", "Pocket007")
pocket8.Profile = sketch13
pocket8.Length = 10
doc.recompute()

chamfer = body.newObject("PartDesign::Chamfer", "Chamfer")
chamfer.Base = (pocket8, edges_at(pocket8, [(-9.1, 42.2, 0)]))
chamfer.Size = 1

doc.recompute()
